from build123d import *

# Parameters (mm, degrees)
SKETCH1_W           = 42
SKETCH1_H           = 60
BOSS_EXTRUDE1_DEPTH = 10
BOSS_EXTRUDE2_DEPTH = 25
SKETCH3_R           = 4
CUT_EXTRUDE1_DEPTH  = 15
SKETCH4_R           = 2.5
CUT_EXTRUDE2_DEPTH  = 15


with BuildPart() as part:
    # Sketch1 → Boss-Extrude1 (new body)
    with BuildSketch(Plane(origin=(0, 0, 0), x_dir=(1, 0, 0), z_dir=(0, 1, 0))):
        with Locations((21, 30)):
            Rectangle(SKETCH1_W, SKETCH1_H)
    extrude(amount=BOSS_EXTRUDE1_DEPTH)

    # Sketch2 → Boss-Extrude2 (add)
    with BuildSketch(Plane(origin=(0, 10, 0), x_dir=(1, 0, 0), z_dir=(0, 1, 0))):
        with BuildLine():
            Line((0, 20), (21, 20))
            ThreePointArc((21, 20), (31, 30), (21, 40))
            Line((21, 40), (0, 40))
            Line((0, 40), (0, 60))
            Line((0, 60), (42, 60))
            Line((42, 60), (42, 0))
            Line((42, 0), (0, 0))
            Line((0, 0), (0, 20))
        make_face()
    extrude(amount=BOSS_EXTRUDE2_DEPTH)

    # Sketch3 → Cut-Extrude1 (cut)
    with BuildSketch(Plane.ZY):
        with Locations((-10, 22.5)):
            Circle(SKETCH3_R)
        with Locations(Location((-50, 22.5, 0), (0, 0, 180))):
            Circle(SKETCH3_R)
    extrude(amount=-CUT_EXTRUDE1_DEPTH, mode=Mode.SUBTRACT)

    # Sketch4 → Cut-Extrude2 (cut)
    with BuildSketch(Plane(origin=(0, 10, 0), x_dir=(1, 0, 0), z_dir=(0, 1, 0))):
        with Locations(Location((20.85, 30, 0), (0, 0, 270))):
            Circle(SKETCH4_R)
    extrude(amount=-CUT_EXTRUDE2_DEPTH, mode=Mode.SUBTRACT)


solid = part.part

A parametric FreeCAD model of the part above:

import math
import FreeCAD as App
import Part
import Sketcher
from FreeCAD import Vector

doc = App.newDocument("Part")
params = doc.addObject("Spreadsheet::Sheet", "Params")
for row, (alias, value) in enumerate([
    ("sketch1_width", "42 mm"),
    ("sketch1_height", "60 mm"),
    ("pad1_length", "10 mm"),
    ("sketch2_radius", "10 mm"),
    ("sketch2_width", "21 mm"),
    ("sketch2_width2", "42 mm"),
    ("sketch2_height", "20 mm"),
    ("pad2_length", "25 mm"),
    ("sketch3_diameter", "8 mm"),
    ("pocket1_length", "15 mm"),
    ("sketch4_diameter", "5 mm"),
    ("pocket2_length", "15 mm"),
], start=1):
    params.set(f"A{row}", alias)
    params.set(f"B{row}", "=" + value)
    params.setAlias(f"B{row}", alias)

body = doc.addObject("PartDesign::Body", "Body")

sketch1 = body.newObject("Sketcher::SketchObject", "Sketch")
sketch1.AttachmentSupport = (doc.getObject("XZ_Plane"), [""])
sketch1.MapMode = "FlatFace"
sketch1.addGeometry(Part.LineSegment(Vector(0, -60, 0), Vector(0, 0, 0)), False)
sketch1.addGeometry(Part.LineSegment(Vector(0, 0, 0), Vector(42, 0, 0)), False)
sketch1.addGeometry(Part.LineSegment(Vector(42, 0, 0), Vector(42, -60, 0)), False)
sketch1.addGeometry(Part.LineSegment(Vector(42, -60, 0), Vector(0, -60, 0)), False)
sketch1.addConstraint(Sketcher.Constraint("Coincident", 0, 2, 1, 1))
sketch1.addConstraint(Sketcher.Constraint("Coincident", 1, 2, 2, 1))
sketch1.addConstraint(Sketcher.Constraint("Coincident", 2, 2, 3, 1))
sketch1.addConstraint(Sketcher.Constraint("Coincident", 3, 2, 0, 1))
sketch1.addConstraint(Sketcher.Constraint("Vertical", 0))
sketch1.addConstraint(Sketcher.Constraint("Horizontal", 1))
sketch1.addConstraint(Sketcher.Constraint("Vertical", 2))
sketch1.addConstraint(Sketcher.Constraint("Horizontal", 3))
sketch1.addConstraint(Sketcher.Constraint("Coincident", 0, 2, -1, 1))
sketch1.addConstraint(Sketcher.Constraint("DistanceX", 1, 1, 1, 2, 42.0))
sketch1.addConstraint(Sketcher.Constraint("DistanceY", 0, 1, 0, 2, 60.0))
sketch1.setExpression("Constraints[9]", "Params.sketch1_width")
sketch1.setExpression("Constraints[10]", "Params.sketch1_height")
pad1 = body.newObject("PartDesign::Pad", "Pad")
pad1.Profile = sketch1
pad1.setExpression("Length", "Params.pad1_length")
pad1.Reversed = True

sketch2 = body.newObject("Sketcher::SketchObject", "Sketch001")
sketch2.AttachmentSupport = (doc.getObject("XZ_Plane"), [""])
sketch2.MapMode = "FlatFace"
sketch2.AttachmentOffset = App.Placement(Vector(0, 0, -10), App.Rotation())
sketch2.addGeometry(Part.LineSegment(Vector(21, -20, 0), Vector(0, -20, 0)), False)
sketch2.addGeometry(Part.LineSegment(Vector(0, -20, 0), Vector(0, 0, 0)), False)
sketch2.addGeometry(Part.LineSegment(Vector(0, 0, 0), Vector(42, 0, 0)), False)
sketch2.addGeometry(Part.LineSegment(Vector(42, 0, 0), Vector(42, -60, 0)), False)
sketch2.addGeometry(Part.LineSegment(Vector(42, -60, 0), Vector(0, -60, 0)), False)
sketch2.addGeometry(Part.LineSegment(Vector(0, -60, 0), Vector(0, -40, 0)), False)
sketch2.addGeometry(Part.LineSegment(Vector(0, -40, 0), Vector(21, -40, 0)), False)
sketch2.addGeometry(Part.ArcOfCircle(Part.Circle(Vector(21, -30, 0), Vector(0, 0, 1), 10), math.radians(-90), math.radians(90)), False)
sketch2.addConstraint(Sketcher.Constraint("Coincident", 0, 2, 1, 1))
sketch2.addConstraint(Sketcher.Constraint("Coincident", 1, 2, 2, 1))
sketch2.addConstraint(Sketcher.Constraint("Coincident", 2, 2, 3, 1))
sketch2.addConstraint(Sketcher.Constraint("Coincident", 3, 2, 4, 1))
sketch2.addConstraint(Sketcher.Constraint("Coincident", 4, 2, 5, 1))
sketch2.addConstraint(Sketcher.Constraint("Coincident", 5, 2, 6, 1))
sketch2.addConstraint(Sketcher.Constraint("Tangent", 6, 2, 7, 1))
sketch2.addConstraint(Sketcher.Constraint("Tangent", 7, 2, 0, 1))
sketch2.addConstraint(Sketcher.Constraint("Horizontal", 0))
sketch2.addConstraint(Sketcher.Constraint("Vertical", 1))
sketch2.addConstraint(Sketcher.Constraint("Horizontal", 2))
sketch2.addConstraint(Sketcher.Constraint("Vertical", 3))
sketch2.addConstraint(Sketcher.Constraint("Horizontal", 4))
sketch2.addConstraint(Sketcher.Constraint("Vertical", 5))
sketch2.addConstraint(Sketcher.Constraint("Horizontal", 6))
sketch2.addConstraint(Sketcher.Constraint("Coincident", 1, 2, -1, 1))
sketch2.addConstraint(Sketcher.Constraint("PointOnObject", 4, 2, -2))
sketch2.addConstraint(Sketcher.Constraint("Equal", 1, 5))
sketch2.addConstraint(Sketcher.Constraint("Radius", 7, 10.0))
sketch2.addConstraint(Sketcher.Constraint("DistanceX", 0, 2, 0, 1, 21.0))
sketch2.addConstraint(Sketcher.Constraint("DistanceX", 2, 1, 2, 2, 42.0))
sketch2.addConstraint(Sketcher.Constraint("DistanceY", 1, 1, 1, 2, 20.0))
sketch2.setExpression("Constraints[18]", "Params.sketch2_radius")
sketch2.setExpression("Constraints[19]", "Params.sketch2_width")
sketch2.setExpression("Constraints[20]", "Params.sketch2_width2")
sketch2.setExpression("Constraints[21]", "Params.sketch2_height")
pad2 = body.newObject("PartDesign::Pad", "Pad001")
pad2.Profile = sketch2
pad2.setExpression("Length", "Params.pad2_length")
pad2.Reversed = True

sketch3 = body.newObject("Sketcher::SketchObject", "Sketch002")
sketch3.AttachmentSupport = (doc.getObject("YZ_Plane"), [""])
sketch3.MapMode = "FlatFace"
sketch3.addGeometry(Part.Circle(Vector(22.5, -10, 0), Vector(0, 0, 1), 4), False)
sketch3.addGeometry(Part.Circle(Vector(22.5, -50, 0), Vector(0, 0, 1), 4), False)
sketch3.addConstraint(Sketcher.Constraint("Equal", 0, 1))
sketch3.addConstraint(Sketcher.Constraint("Vertical", 0, 3, 1, 3))
sketch3.addConstraint(Sketcher.Constraint("Diameter", 0, 8.0))
sketch3.addConstraint(Sketcher.Constraint("DistanceY", 0, 3, -1, 1, 10.0))
sketch3.addConstraint(Sketcher.Constraint("DistanceY", 1, 3, -1, 1, 50.0))
sketch3.addConstraint(Sketcher.Constraint("DistanceX", -1, 1, 0, 3, 22.5))
sketch3.setExpression("Constraints[2]", "Params.sketch3_diameter")
pocket1 = body.newObject("PartDesign::Pocket", "Pocket")
pocket1.Profile = sketch3
pocket1.setExpression("Length", "Params.pocket1_length")
pocket1.Reversed = True

sketch4 = body.newObject("Sketcher::SketchObject", "Sketch003")
sketch4.AttachmentSupport = (doc.getObject("XZ_Plane"), [""])
sketch4.MapMode = "FlatFace"
sketch4.AttachmentOffset = App.Placement(Vector(0, 0, -10), App.Rotation())
sketch4.addGeometry(Part.Circle(Vector(20.9, -30, 0), Vector(0, 0, 1), 2.5), False)
sketch4.addConstraint(Sketcher.Constraint("Diameter", 0, 5.0))
sketch4.addConstraint(Sketcher.Constraint("DistanceY", 0, 3, -1, 1, 30.0))
sketch4.addConstraint(Sketcher.Constraint("DistanceX", -1, 1, 0, 3, 20.85))
sketch4.setExpression("Constraints[0]", "Params.sketch4_diameter")
pocket2 = body.newObject("PartDesign::Pocket", "Pocket001")
pocket2.Profile = sketch4
pocket2.setExpression("Length", "Params.pocket2_length")
pocket2.Reversed = True

doc.recompute()
